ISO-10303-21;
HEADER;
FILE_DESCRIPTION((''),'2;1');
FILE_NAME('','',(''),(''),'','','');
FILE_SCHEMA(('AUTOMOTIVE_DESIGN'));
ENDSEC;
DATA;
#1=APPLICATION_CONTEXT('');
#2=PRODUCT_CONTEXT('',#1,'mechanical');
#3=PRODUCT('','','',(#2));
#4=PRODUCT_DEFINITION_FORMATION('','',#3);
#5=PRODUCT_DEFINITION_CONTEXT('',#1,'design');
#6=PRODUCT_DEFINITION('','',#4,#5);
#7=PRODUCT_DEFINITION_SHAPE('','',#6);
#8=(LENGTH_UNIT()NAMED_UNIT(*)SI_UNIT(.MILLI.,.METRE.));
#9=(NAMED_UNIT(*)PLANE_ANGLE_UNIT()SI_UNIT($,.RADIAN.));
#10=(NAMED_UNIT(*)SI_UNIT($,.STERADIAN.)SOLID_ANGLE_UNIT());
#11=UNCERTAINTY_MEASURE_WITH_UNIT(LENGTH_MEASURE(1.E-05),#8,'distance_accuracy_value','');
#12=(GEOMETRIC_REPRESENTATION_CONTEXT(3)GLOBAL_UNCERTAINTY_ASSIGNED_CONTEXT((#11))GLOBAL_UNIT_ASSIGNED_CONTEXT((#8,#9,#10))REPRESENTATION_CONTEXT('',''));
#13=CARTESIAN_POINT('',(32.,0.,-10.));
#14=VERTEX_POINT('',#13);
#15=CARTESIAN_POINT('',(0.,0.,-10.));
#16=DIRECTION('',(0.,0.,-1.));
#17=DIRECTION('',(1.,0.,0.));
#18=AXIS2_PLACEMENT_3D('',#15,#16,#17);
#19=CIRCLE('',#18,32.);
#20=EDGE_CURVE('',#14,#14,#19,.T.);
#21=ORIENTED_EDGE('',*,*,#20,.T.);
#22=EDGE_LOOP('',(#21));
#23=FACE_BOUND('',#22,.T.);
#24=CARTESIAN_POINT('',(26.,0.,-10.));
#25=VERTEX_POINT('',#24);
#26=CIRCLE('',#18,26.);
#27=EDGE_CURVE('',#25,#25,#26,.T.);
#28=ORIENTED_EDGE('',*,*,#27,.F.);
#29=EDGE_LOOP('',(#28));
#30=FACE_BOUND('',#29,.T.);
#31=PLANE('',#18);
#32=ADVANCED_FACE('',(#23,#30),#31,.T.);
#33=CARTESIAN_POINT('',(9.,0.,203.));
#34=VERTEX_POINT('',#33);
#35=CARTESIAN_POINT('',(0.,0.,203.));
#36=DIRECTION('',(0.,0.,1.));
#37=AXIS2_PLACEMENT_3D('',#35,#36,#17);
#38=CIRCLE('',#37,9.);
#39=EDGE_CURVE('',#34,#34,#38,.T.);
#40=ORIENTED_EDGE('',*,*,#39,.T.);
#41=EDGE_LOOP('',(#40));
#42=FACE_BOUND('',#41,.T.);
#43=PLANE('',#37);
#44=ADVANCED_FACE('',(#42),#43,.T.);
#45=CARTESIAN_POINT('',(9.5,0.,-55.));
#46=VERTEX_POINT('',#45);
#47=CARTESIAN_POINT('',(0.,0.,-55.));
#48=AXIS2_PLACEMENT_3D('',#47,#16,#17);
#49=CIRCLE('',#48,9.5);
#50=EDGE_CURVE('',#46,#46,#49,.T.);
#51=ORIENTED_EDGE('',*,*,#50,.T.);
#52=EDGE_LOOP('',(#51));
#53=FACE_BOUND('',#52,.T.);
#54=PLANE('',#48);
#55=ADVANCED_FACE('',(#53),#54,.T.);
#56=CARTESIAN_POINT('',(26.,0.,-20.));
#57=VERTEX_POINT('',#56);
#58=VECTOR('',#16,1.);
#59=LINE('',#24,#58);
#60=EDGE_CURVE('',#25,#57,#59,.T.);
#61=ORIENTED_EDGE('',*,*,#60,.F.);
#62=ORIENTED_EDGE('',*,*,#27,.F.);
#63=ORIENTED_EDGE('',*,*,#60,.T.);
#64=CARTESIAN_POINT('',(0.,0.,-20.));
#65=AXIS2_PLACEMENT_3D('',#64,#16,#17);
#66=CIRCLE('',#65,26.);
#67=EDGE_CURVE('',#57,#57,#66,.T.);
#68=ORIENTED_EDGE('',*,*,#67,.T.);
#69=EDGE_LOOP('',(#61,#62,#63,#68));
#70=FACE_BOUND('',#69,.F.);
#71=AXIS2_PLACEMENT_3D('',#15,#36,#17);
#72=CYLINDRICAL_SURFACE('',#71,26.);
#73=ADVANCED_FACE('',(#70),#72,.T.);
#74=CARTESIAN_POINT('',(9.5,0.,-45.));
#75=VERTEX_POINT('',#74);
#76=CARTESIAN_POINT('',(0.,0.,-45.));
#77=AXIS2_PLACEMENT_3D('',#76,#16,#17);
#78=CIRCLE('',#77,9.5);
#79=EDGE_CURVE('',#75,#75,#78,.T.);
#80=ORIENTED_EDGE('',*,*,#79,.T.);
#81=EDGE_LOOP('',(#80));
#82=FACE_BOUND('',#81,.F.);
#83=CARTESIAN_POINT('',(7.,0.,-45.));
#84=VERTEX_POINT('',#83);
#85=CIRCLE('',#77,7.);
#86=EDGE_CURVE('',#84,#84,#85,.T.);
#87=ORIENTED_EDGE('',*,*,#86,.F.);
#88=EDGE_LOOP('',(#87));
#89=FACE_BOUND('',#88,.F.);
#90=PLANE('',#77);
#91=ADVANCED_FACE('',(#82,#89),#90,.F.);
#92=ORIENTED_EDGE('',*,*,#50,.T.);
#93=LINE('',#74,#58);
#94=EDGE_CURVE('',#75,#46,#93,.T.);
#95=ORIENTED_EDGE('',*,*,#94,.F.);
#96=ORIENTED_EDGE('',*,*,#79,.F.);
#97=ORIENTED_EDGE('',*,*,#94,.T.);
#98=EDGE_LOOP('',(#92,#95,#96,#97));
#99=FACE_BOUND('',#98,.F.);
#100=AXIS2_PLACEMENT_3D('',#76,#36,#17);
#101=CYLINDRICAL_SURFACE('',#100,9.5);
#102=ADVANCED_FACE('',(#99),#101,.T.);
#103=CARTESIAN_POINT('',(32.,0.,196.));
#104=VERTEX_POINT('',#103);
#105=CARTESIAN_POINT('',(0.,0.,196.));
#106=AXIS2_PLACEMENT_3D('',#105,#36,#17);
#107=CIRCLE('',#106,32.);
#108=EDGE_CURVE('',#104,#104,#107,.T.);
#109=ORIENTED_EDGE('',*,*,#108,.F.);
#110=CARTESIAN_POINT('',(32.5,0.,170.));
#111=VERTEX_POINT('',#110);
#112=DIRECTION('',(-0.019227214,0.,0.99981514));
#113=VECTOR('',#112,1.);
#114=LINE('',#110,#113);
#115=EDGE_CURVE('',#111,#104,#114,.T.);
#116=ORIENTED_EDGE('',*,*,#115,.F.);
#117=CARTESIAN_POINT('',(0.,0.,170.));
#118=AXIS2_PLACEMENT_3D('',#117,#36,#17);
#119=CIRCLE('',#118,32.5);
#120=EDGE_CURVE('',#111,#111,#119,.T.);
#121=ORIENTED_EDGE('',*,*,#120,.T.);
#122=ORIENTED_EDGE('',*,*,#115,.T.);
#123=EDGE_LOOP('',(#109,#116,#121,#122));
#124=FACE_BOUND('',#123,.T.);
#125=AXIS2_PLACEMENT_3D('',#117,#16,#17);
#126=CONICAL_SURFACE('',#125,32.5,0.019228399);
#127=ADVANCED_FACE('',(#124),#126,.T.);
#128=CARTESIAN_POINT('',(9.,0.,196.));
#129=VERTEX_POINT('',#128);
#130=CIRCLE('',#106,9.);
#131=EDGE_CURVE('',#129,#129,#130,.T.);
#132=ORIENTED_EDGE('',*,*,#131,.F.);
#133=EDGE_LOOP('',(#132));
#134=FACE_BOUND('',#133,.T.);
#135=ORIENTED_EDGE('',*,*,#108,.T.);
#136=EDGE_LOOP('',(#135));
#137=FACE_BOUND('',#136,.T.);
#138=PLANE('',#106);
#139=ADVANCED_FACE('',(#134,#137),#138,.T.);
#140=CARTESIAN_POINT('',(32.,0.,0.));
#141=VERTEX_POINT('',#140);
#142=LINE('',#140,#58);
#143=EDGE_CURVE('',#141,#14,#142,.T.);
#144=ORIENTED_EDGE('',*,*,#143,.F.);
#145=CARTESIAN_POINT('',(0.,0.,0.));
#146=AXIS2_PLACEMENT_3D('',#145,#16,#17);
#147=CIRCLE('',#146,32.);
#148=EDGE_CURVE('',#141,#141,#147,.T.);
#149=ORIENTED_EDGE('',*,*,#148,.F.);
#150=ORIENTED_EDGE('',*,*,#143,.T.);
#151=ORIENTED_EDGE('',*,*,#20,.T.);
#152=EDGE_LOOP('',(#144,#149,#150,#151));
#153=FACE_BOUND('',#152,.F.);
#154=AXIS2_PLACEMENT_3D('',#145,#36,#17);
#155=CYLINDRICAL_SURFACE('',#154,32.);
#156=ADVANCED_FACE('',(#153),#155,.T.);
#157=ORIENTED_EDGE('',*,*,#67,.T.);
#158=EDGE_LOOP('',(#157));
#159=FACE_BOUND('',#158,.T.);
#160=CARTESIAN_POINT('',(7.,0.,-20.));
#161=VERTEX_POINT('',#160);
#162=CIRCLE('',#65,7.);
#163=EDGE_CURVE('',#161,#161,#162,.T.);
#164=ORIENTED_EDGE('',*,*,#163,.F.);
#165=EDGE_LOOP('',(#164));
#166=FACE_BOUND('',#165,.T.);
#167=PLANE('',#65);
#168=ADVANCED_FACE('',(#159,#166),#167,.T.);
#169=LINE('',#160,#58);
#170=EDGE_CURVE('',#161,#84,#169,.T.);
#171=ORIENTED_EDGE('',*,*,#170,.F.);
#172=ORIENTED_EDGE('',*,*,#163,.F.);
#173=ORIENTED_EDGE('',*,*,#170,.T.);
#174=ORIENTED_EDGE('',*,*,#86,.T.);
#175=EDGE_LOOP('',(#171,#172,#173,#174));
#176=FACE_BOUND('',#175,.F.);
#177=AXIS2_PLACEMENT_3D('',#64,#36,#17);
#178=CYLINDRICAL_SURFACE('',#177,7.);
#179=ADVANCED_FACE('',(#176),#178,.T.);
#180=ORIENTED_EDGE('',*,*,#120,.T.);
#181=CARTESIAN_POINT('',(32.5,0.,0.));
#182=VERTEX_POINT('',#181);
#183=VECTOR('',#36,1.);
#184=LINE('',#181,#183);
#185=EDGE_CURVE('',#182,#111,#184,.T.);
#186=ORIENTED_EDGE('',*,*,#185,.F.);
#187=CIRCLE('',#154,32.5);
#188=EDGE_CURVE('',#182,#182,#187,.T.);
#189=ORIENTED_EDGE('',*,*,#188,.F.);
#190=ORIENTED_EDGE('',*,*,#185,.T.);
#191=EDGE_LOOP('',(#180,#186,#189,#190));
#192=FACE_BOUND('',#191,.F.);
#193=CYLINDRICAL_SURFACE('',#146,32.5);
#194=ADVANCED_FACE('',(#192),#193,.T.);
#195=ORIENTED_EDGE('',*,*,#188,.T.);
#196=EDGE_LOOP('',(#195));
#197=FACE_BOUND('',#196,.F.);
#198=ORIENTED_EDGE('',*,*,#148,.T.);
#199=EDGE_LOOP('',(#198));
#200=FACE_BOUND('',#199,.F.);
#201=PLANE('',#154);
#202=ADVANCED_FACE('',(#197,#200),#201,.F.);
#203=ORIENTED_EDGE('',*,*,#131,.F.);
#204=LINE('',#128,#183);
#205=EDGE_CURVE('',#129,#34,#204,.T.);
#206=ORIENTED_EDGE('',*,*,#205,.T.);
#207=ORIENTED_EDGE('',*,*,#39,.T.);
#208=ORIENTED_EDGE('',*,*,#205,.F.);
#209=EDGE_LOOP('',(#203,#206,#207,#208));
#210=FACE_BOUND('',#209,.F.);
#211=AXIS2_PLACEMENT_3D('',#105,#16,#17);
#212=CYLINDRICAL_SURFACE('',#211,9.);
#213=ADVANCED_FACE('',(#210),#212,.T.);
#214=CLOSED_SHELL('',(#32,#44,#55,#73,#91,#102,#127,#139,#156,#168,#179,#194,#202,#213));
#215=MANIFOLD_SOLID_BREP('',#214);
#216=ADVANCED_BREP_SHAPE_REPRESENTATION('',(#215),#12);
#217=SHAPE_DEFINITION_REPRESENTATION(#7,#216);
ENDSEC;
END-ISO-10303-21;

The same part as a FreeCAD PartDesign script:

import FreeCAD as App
import Part
import Sketcher
from FreeCAD import Vector
Q = App.Units.Quantity


def edges_at(feature, points):
    """Names of the edges that pass closest to the given points."""
    edges = feature.Shape.Edges
    near = lambda p: min(range(len(edges)), key=lambda i: edges[i].distToShape(Part.Vertex(*p))[0])
    return sorted({f"Edge{near(p) + 1}" for p in points})

doc = App.newDocument("Part")
body = doc.addObject("PartDesign::Body", "Body")

sketch1 = body.newObject("Sketcher::SketchObject", "Sketch")
sketch1.AttachmentSupport = (doc.getObject("XY_Plane"), [""])
sketch1.MapMode = "FlatFace"
sketch1.addGeometry(Part.Circle(Vector(0, 0, 0), Vector(0, 0, 1), 32), False)
sketch1.addConstraint(Sketcher.Constraint("Coincident", 0, 3, -1, 1))
sketch1.addConstraint(Sketcher.Constraint("Diameter", 0, Q("65 mm")))
pad1 = body.newObject("PartDesign::Pad", "Pad")
pad1.Profile = sketch1
pad1.Length = 196
doc.recompute()

chamfer = body.newObject("PartDesign::Chamfer", "Chamfer")
chamfer.Base = (pad1, edges_at(pad1, [(-32.5, 0, 196)]))
chamfer.ChamferType = "Two distances"
chamfer.Size = 26
chamfer.Size2 = 0.5

sketch2 = body.newObject("Sketcher::SketchObject", "Sketch001")
sketch2.AttachmentSupport = (doc.getObject("XY_Plane"), [""])
sketch2.MapMode = "FlatFace"
sketch2.addGeometry(Part.Circle(Vector(0, 0, 0), Vector(0, 0, 1), 32), False)
sketch2.addConstraint(Sketcher.Constraint("Coincident", 0, 3, -1, 1))
sketch2.addConstraint(Sketcher.Constraint("Diameter", 0, Q("64 mm")))
pad2 = body.newObject("PartDesign::Pad", "Pad001")
pad2.Profile = sketch2
pad2.Length = 10
pad2.Reversed = True

sketch3 = body.newObject("Sketcher::SketchObject", "Sketch002")
sketch3.AttachmentSupport = (doc.getObject("XY_Plane"), [""])
sketch3.MapMode = "FlatFace"
sketch3.AttachmentOffset = App.Placement(Vector(0, 0, -10), App.Rotation())
sketch3.addGeometry(Part.Circle(Vector(0, 0, 0), Vector(0, 0, 1), 26), False)
sketch3.addConstraint(Sketcher.Constraint("Coincident", 0, 3, -1, 1))
sketch3.addConstraint(Sketcher.Constraint("Diameter", 0, Q("52 mm")))
pad3 = body.newObject("PartDesign::Pad", "Pad002")
pad3.Profile = sketch3
pad3.Length = 10
pad3.Reversed = True

sketch4 = body.newObject("Sketcher::SketchObject", "Sketch003")
sketch4.AttachmentSupport = (doc.getObject("XY_Plane"), [""])
sketch4.MapMode = "FlatFace"
sketch4.AttachmentOffset = App.Placement(Vector(0, 0, -20), App.Rotation())
sketch4.addGeometry(Part.Circle(Vector(0, 0, 0), Vector(0, 0, 1), 7), False)
sketch4.addConstraint(Sketcher.Constraint("Coincident", 0, 3, -1, 1))
sketch4.addConstraint(Sketcher.Constraint("Diameter", 0, Q("14 mm")))
pad4 = body.newObject("PartDesign::Pad", "Pad003")
pad4.Profile = sketch4
pad4.Length = 25
pad4.Reversed = True

sketch5 = body.newObject("Sketcher::SketchObject", "Sketch004")
sketch5.AttachmentSupport = (doc.getObject("XY_Plane"), [""])
sketch5.MapMode = "FlatFace"
sketch5.AttachmentOffset = App.Placement(Vector(0, 0, -45), App.Rotation())
sketch5.addGeometry(Part.Circle(Vector(0, 0, 0), Vector(0, 0, 1), 10), False)
sketch5.addConstraint(Sketcher.Constraint("Coincident", 0, 3, -1, 1))
sketch5.addConstraint(Sketcher.Constraint("Diameter", 0, Q("19 mm")))
pad5 = body.newObject("PartDesign::Pad", "Pad004")
pad5.Profile = sketch5
pad5.Length = 10
pad5.Reversed = True

sketch6 = body.newObject("Sketcher::SketchObject", "Sketch005")
sketch6.AttachmentSupport = (doc.getObject("XY_Plane"), [""])
sketch6.MapMode = "FlatFace"
sketch6.AttachmentOffset = App.Placement(Vector(0, 0, 196), App.Rotation())
sketch6.addGeometry(Part.Circle(Vector(0, 0, 0), Vector(0, 0, 1), 9), False)
sketch6.addConstraint(Sketcher.Constraint("Coincident", 0, 3, -1, 1))
sketch6.addConstraint(Sketcher.Constraint("Diameter", 0, Q("18 mm")))
pad6 = body.newObject("PartDesign::Pad", "Pad005")
pad6.Profile = sketch6
pad6.Length = 7

doc.recompute()
